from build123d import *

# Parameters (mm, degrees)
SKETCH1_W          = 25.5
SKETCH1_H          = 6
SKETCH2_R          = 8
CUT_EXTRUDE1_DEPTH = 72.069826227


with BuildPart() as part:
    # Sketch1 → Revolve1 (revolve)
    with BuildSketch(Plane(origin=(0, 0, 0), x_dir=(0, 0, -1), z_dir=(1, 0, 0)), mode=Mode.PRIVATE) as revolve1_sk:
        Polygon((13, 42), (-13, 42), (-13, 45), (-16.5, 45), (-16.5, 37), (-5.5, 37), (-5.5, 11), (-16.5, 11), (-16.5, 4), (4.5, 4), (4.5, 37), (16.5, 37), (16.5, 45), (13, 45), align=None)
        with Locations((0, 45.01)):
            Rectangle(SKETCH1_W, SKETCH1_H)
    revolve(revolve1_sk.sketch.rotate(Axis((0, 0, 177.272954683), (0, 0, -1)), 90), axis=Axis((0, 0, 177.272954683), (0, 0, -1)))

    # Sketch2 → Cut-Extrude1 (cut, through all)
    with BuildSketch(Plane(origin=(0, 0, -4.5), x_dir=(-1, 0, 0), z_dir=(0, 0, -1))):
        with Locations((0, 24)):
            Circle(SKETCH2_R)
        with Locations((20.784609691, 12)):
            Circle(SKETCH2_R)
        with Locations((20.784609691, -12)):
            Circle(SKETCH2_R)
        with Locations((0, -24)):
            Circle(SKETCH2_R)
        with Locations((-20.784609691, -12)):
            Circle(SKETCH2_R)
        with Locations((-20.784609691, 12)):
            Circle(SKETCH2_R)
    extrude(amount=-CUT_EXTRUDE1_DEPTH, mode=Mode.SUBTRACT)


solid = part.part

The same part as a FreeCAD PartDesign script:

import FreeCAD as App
import Part
import Sketcher
Q = App.Units.Quantity


def add_polygon(sketch, points):
    """Adds a closed chain of lines whose ends are joined by coincident constraints."""
    first, n = sketch.GeometryCount, len(points)
    for a, b in zip(points, points[1:] + points[:1]):
        sketch.addGeometry(Part.LineSegment(App.Vector(*a, 0), App.Vector(*b, 0)), False)
    for i in range(n):
        sketch.addConstraint(Sketcher.Constraint("Coincident", first + i, 2, first + (i + 1) % n, 1))

doc = App.newDocument("Part")
body = doc.addObject("PartDesign::Body", "Body")
body.AllowCompound = True

sketch1 = body.newObject("Sketcher::SketchObject", "Sketch")
sketch1.AttachmentSupport = (doc.getObject("YZ_Plane"), [""])
sketch1.MapMode = "FlatFace"
add_polygon(sketch1, [(42, -13), (42, 13), (45, 13), (45, 16.5), (37, 16.5), (37, 5.5), (11, 5.5), (11, 16.5), (4, 16.5), (4, -4.5), (37, -4.5), (37, -16.5), (45, -16.5), (45, -13)])
add_polygon(sketch1, [(48, 12.8), (42, 12.8), (42, -12.8), (48, -12.8)])
sketch1.addConstraint(Sketcher.Constraint("Vertical", 0))
sketch1.addConstraint(Sketcher.Constraint("Horizontal", 1))
sketch1.addConstraint(Sketcher.Constraint("Vertical", 2))
sketch1.addConstraint(Sketcher.Constraint("Horizontal", 3))
sketch1.addConstraint(Sketcher.Constraint("Vertical", 4))
sketch1.addConstraint(Sketcher.Constraint("Horizontal", 5))
sketch1.addConstraint(Sketcher.Constraint("Vertical", 6))
sketch1.addConstraint(Sketcher.Constraint("Horizontal", 7))
sketch1.addConstraint(Sketcher.Constraint("Vertical", 8))
sketch1.addConstraint(Sketcher.Constraint("Horizontal", 9))
sketch1.addConstraint(Sketcher.Constraint("Vertical", 10))
sketch1.addConstraint(Sketcher.Constraint("Horizontal", 11))
sketch1.addConstraint(Sketcher.Constraint("Vertical", 12))
sketch1.addConstraint(Sketcher.Constraint("Horizontal", 13))
sketch1.addConstraint(Sketcher.Constraint("Horizontal", 14))
sketch1.addConstraint(Sketcher.Constraint("Vertical", 15))
sketch1.addConstraint(Sketcher.Constraint("Horizontal", 16))
sketch1.addConstraint(Sketcher.Constraint("Vertical", 17))
sketch1.addConstraint(Sketcher.Constraint("Symmetric", 3, 2, 10, 2, -1))
sketch1.addConstraint(Sketcher.Constraint("Symmetric", 1, 2, 12, 2, -1))
sketch1.addConstraint(Sketcher.Constraint("Horizontal", 3, 2, 6, 2))
sketch1.addConstraint(Sketcher.Constraint("Equal", 5, 0))
sketch1.addConstraint(Sketcher.Constraint("DistanceX", 1, 1, 1, 2, Q("3 mm")))
sketch1.addConstraint(Sketcher.Constraint("DistanceX", 3, 2, 3, 1, Q("8 mm")))
sketch1.addConstraint(Sketcher.Constraint("DistanceX", 5, 2, 5, 1, Q("26 mm")))
sketch1.addConstraint(Sketcher.Constraint("DistanceX", 7, 2, 7, 1, Q("7 mm")))
sketch1.addConstraint(Sketcher.Constraint("DistanceX", 14, 2, 14, 1, Q("6 mm")))
sketch1.addConstraint(Sketcher.Constraint("DistanceY", 4, 2, 4, 1, Q("11 mm")))
sketch1.addConstraint(Sketcher.Constraint("DistanceY", 8, 2, 8, 1, Q("21 mm")))
sketch1.addConstraint(Sketcher.Constraint("DistanceY", 10, 2, 10, 1, Q("12 mm")))
sketch1.addConstraint(Sketcher.Constraint("DistanceY", 15, 2, 15, 1, Q("25.5 mm")))
sketch1.addConstraint(Sketcher.Constraint("DistanceX", -1, 1, 0, 2, Q("42 mm")))
sketch1.addConstraint(Sketcher.Constraint("DistanceX", -1, 1, 14, 2, Q("42.01 mm")))
sketch1.addConstraint(Sketcher.Constraint("DistanceY", -1, 1, 14, 2, Q("12.75 mm")))
revolution = body.newObject("PartDesign::Revolution", "Revolution")
revolution.Profile = sketch1
revolution.ReferenceAxis = (sketch1, ["V_Axis"])
revolution.Angle = 360

sketch2 = body.newObject("Sketcher::SketchObject", "Sketch001")
sketch2.AttachmentSupport = (doc.getObject("XY_Plane"), [""])
sketch2.MapMode = "FlatFace"
sketch2.AttachmentOffset = App.Placement(App.Vector(0, 0, -4.5), App.Rotation())
sketch2.addGeometry(Part.Circle(App.Vector(0, 24, 0), App.Vector(0, 0, 1), 8), False)
sketch2.addGeometry(Part.Circle(App.Vector(-21, 12, 0), App.Vector(0, 0, 1), 8), False)
sketch2.addGeometry(Part.Circle(App.Vector(-21, -12, 0), App.Vector(0, 0, 1), 8), False)
sketch2.addGeometry(Part.Circle(App.Vector(0, -24, 0), App.Vector(0, 0, 1), 8), False)
sketch2.addGeometry(Part.Circle(App.Vector(21, -12, 0), App.Vector(0, 0, 1), 8), False)
sketch2.addGeometry(Part.Circle(App.Vector(21, 12, 0), App.Vector(0, 0, 1), 8), False)
sketch2.addConstraint(Sketcher.Constraint("Equal", 0, 1))
sketch2.addConstraint(Sketcher.Constraint("Equal", 1, 2))
sketch2.addConstraint(Sketcher.Constraint("Equal", 2, 3))
sketch2.addConstraint(Sketcher.Constraint("Equal", 3, 4))
sketch2.addConstraint(Sketcher.Constraint("Equal", 4, 5))
sketch2.addConstraint(Sketcher.Constraint("Symmetric", 0, 3, 3, 3, -1, 1))
sketch2.addConstraint(Sketcher.Constraint("Symmetric", 1, 3, 4, 3, -1, 1))
sketch2.addConstraint(Sketcher.Constraint("Symmetric", 2, 3, 5, 3, -1, 1))
sketch2.addConstraint(Sketcher.Constraint("Symmetric", 2, 3, 4, 3, -2))
sketch2.addConstraint(Sketcher.Constraint("PointOnObject", 0, 3, -2))
sketch2.addConstraint(Sketcher.Constraint("Diameter", 0, Q("16 mm")))
sketch2.addConstraint(Sketcher.Constraint("DistanceY", -1, 1, 0, 3, Q("24 mm")))
sketch2.addConstraint(Sketcher.Constraint("DistanceY", -1, 1, 1, 3, Q("12 mm")))
sketch2.addConstraint(Sketcher.Constraint("DistanceX", 1, 3, -1, 1, Q("20.78461 mm")))
pocket1 = body.newObject("PartDesign::Pocket", "Pocket")
pocket1.Profile = sketch2
pocket1.Type = "ThroughAll"
pocket1.Reversed = True

doc.recompute()
